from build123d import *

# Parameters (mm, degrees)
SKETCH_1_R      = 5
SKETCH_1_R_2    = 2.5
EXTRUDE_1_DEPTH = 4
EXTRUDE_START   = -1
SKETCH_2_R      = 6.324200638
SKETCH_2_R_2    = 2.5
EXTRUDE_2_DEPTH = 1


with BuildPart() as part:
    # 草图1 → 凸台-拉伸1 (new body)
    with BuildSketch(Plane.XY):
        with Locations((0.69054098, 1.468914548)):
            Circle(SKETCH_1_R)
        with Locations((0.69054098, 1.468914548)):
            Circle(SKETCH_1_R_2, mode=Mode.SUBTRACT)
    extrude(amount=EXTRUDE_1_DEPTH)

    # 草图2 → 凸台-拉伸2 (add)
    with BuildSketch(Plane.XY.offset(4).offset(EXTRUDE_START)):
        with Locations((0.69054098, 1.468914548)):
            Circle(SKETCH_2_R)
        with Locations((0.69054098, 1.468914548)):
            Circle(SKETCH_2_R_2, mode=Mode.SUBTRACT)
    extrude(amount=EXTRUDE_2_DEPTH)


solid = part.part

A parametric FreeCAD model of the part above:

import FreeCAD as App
import Part
import Sketcher

doc = App.newDocument("Part")
body = doc.addObject("PartDesign::Body", "Body")

sketch1 = body.newObject("Sketcher::SketchObject", "Sketch")
sketch1.AttachmentSupport = (doc.getObject("XY_Plane"), [""])
sketch1.MapMode = "FlatFace"
sketch1.addGeometry(Part.Circle(App.Vector(0.7, 1.5, 0), App.Vector(0, 0, 1), 5), False)
sketch1.addGeometry(Part.Circle(App.Vector(0.7, 1.5, 0), App.Vector(0, 0, 1), 2.5), False)
sketch1.addConstraint(Sketcher.Constraint("Coincident", 1, 3, 0, 3))
sketch1.addConstraint(Sketcher.Constraint("Diameter", 0, 10.0))
sketch1.addConstraint(Sketcher.Constraint("Diameter", 1, 5.0))
sketch1.addConstraint(Sketcher.Constraint("DistanceX", -1, 1, 0, 3, 0.690541))
sketch1.addConstraint(Sketcher.Constraint("DistanceY", -1, 1, 0, 3, 1.468915))
pad1 = body.newObject("PartDesign::Pad", "Pad")
pad1.Profile = sketch1
pad1.Length = 4

sketch2 = body.newObject("Sketcher::SketchObject", "Sketch001")
sketch2.AttachmentSupport = (doc.getObject("XY_Plane"), [""])
sketch2.MapMode = "FlatFace"
sketch2.AttachmentOffset = App.Placement(App.Vector(0, 0, 3), App.Rotation())
sketch2.addGeometry(Part.Circle(App.Vector(0.7, 1.5, 0), App.Vector(0, 0, 1), 6.3), False)
sketch2.addGeometry(Part.Circle(App.Vector(0.7, 1.5, 0), App.Vector(0, 0, 1), 2.5), False)
sketch2.addConstraint(Sketcher.Constraint("Coincident", 1, 3, 0, 3))
sketch2.addConstraint(Sketcher.Constraint("Diameter", 1, 5.0))
sketch2.addConstraint(Sketcher.Constraint("Diameter", 0, 12.648401))
sketch2.addConstraint(Sketcher.Constraint("DistanceX", -1, 1, 0, 3, 0.690541))
sketch2.addConstraint(Sketcher.Constraint("DistanceY", -1, 1, 0, 3, 1.468915))
pad2 = body.newObject("PartDesign::Pad", "Pad001")
pad2.Profile = sketch2
pad2.Length = 1

doc.recompute()
